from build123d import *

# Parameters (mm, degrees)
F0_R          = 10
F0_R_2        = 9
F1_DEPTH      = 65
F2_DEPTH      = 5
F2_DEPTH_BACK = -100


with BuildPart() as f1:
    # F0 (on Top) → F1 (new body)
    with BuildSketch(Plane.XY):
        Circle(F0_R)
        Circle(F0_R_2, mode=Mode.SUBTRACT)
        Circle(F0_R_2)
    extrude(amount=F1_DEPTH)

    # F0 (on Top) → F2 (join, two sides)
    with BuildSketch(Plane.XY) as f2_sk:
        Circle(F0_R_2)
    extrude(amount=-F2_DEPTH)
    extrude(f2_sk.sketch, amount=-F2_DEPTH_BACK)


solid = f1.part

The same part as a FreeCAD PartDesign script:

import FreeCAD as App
import Part
import Sketcher
Q = App.Units.Quantity

doc = App.newDocument("Part")
params = doc.addObject("Spreadsheet::Sheet", "Params")
for row, (alias, value) in enumerate([
    ("sketch1_diameter", "20 mm"),
    ("pad1_length", "65 mm"),
    ("sketch2_diameter", "18 mm"),
    ("pad2_length", "5 mm"),
    ("pad2_length2", "100 mm"),
], start=1):
    params.set(f"A{row}", alias)
    params.set(f"B{row}", "=" + value)
    params.setAlias(f"B{row}", alias)

body = doc.addObject("PartDesign::Body", "Body")

# Sketch on XY plane
sketch1 = doc.addObject("Sketcher::SketchObject", "Sketch")
body.addObject(sketch1)
sketch1.AttachmentSupport = (doc.XY_Plane, [""])
sketch1.MapMode = "FlatFace"
sketch1.addGeometry(Part.Circle(App.Vector(0, 0, 0), App.Vector(0, 0, 1), 10), False)
sketch1.addConstraint([
    Sketcher.Constraint("Coincident", 0, 3, -1, 1),
    Sketcher.Constraint("Diameter", 0, Q("20 mm")),
])
sketch1.setExpression("Constraints[1]", "Params.sketch1_diameter")
pad1 = doc.addObject("PartDesign::Pad", "Pad")
body.addObject(pad1)
pad1.Profile = sketch1
pad1.setExpression("Length", "Params.pad1_length")

# Sketch on XY plane
sketch2 = doc.addObject("Sketcher::SketchObject", "Sketch001")
body.addObject(sketch2)
sketch2.AttachmentSupport = (doc.XY_Plane, [""])
sketch2.MapMode = "FlatFace"
sketch2.addGeometry(Part.Circle(App.Vector(0, 0, 0), App.Vector(0, 0, 1), 9), False)
sketch2.addConstraint([
    Sketcher.Constraint("Coincident", 0, 3, -1, 1),
    Sketcher.Constraint("Diameter", 0, Q("18 mm")),
])
sketch2.setExpression("Constraints[1]", "Params.sketch2_diameter")
pad2 = doc.addObject("PartDesign::Pad", "Pad001")
body.addObject(pad2)
pad2.Profile = sketch2
pad2.Type = "TwoLengths"
pad2.setExpression("Length", "Params.pad2_length")
pad2.setExpression("Length2", "Params.pad2_length2")
pad2.Reversed = True

doc.recompute()
